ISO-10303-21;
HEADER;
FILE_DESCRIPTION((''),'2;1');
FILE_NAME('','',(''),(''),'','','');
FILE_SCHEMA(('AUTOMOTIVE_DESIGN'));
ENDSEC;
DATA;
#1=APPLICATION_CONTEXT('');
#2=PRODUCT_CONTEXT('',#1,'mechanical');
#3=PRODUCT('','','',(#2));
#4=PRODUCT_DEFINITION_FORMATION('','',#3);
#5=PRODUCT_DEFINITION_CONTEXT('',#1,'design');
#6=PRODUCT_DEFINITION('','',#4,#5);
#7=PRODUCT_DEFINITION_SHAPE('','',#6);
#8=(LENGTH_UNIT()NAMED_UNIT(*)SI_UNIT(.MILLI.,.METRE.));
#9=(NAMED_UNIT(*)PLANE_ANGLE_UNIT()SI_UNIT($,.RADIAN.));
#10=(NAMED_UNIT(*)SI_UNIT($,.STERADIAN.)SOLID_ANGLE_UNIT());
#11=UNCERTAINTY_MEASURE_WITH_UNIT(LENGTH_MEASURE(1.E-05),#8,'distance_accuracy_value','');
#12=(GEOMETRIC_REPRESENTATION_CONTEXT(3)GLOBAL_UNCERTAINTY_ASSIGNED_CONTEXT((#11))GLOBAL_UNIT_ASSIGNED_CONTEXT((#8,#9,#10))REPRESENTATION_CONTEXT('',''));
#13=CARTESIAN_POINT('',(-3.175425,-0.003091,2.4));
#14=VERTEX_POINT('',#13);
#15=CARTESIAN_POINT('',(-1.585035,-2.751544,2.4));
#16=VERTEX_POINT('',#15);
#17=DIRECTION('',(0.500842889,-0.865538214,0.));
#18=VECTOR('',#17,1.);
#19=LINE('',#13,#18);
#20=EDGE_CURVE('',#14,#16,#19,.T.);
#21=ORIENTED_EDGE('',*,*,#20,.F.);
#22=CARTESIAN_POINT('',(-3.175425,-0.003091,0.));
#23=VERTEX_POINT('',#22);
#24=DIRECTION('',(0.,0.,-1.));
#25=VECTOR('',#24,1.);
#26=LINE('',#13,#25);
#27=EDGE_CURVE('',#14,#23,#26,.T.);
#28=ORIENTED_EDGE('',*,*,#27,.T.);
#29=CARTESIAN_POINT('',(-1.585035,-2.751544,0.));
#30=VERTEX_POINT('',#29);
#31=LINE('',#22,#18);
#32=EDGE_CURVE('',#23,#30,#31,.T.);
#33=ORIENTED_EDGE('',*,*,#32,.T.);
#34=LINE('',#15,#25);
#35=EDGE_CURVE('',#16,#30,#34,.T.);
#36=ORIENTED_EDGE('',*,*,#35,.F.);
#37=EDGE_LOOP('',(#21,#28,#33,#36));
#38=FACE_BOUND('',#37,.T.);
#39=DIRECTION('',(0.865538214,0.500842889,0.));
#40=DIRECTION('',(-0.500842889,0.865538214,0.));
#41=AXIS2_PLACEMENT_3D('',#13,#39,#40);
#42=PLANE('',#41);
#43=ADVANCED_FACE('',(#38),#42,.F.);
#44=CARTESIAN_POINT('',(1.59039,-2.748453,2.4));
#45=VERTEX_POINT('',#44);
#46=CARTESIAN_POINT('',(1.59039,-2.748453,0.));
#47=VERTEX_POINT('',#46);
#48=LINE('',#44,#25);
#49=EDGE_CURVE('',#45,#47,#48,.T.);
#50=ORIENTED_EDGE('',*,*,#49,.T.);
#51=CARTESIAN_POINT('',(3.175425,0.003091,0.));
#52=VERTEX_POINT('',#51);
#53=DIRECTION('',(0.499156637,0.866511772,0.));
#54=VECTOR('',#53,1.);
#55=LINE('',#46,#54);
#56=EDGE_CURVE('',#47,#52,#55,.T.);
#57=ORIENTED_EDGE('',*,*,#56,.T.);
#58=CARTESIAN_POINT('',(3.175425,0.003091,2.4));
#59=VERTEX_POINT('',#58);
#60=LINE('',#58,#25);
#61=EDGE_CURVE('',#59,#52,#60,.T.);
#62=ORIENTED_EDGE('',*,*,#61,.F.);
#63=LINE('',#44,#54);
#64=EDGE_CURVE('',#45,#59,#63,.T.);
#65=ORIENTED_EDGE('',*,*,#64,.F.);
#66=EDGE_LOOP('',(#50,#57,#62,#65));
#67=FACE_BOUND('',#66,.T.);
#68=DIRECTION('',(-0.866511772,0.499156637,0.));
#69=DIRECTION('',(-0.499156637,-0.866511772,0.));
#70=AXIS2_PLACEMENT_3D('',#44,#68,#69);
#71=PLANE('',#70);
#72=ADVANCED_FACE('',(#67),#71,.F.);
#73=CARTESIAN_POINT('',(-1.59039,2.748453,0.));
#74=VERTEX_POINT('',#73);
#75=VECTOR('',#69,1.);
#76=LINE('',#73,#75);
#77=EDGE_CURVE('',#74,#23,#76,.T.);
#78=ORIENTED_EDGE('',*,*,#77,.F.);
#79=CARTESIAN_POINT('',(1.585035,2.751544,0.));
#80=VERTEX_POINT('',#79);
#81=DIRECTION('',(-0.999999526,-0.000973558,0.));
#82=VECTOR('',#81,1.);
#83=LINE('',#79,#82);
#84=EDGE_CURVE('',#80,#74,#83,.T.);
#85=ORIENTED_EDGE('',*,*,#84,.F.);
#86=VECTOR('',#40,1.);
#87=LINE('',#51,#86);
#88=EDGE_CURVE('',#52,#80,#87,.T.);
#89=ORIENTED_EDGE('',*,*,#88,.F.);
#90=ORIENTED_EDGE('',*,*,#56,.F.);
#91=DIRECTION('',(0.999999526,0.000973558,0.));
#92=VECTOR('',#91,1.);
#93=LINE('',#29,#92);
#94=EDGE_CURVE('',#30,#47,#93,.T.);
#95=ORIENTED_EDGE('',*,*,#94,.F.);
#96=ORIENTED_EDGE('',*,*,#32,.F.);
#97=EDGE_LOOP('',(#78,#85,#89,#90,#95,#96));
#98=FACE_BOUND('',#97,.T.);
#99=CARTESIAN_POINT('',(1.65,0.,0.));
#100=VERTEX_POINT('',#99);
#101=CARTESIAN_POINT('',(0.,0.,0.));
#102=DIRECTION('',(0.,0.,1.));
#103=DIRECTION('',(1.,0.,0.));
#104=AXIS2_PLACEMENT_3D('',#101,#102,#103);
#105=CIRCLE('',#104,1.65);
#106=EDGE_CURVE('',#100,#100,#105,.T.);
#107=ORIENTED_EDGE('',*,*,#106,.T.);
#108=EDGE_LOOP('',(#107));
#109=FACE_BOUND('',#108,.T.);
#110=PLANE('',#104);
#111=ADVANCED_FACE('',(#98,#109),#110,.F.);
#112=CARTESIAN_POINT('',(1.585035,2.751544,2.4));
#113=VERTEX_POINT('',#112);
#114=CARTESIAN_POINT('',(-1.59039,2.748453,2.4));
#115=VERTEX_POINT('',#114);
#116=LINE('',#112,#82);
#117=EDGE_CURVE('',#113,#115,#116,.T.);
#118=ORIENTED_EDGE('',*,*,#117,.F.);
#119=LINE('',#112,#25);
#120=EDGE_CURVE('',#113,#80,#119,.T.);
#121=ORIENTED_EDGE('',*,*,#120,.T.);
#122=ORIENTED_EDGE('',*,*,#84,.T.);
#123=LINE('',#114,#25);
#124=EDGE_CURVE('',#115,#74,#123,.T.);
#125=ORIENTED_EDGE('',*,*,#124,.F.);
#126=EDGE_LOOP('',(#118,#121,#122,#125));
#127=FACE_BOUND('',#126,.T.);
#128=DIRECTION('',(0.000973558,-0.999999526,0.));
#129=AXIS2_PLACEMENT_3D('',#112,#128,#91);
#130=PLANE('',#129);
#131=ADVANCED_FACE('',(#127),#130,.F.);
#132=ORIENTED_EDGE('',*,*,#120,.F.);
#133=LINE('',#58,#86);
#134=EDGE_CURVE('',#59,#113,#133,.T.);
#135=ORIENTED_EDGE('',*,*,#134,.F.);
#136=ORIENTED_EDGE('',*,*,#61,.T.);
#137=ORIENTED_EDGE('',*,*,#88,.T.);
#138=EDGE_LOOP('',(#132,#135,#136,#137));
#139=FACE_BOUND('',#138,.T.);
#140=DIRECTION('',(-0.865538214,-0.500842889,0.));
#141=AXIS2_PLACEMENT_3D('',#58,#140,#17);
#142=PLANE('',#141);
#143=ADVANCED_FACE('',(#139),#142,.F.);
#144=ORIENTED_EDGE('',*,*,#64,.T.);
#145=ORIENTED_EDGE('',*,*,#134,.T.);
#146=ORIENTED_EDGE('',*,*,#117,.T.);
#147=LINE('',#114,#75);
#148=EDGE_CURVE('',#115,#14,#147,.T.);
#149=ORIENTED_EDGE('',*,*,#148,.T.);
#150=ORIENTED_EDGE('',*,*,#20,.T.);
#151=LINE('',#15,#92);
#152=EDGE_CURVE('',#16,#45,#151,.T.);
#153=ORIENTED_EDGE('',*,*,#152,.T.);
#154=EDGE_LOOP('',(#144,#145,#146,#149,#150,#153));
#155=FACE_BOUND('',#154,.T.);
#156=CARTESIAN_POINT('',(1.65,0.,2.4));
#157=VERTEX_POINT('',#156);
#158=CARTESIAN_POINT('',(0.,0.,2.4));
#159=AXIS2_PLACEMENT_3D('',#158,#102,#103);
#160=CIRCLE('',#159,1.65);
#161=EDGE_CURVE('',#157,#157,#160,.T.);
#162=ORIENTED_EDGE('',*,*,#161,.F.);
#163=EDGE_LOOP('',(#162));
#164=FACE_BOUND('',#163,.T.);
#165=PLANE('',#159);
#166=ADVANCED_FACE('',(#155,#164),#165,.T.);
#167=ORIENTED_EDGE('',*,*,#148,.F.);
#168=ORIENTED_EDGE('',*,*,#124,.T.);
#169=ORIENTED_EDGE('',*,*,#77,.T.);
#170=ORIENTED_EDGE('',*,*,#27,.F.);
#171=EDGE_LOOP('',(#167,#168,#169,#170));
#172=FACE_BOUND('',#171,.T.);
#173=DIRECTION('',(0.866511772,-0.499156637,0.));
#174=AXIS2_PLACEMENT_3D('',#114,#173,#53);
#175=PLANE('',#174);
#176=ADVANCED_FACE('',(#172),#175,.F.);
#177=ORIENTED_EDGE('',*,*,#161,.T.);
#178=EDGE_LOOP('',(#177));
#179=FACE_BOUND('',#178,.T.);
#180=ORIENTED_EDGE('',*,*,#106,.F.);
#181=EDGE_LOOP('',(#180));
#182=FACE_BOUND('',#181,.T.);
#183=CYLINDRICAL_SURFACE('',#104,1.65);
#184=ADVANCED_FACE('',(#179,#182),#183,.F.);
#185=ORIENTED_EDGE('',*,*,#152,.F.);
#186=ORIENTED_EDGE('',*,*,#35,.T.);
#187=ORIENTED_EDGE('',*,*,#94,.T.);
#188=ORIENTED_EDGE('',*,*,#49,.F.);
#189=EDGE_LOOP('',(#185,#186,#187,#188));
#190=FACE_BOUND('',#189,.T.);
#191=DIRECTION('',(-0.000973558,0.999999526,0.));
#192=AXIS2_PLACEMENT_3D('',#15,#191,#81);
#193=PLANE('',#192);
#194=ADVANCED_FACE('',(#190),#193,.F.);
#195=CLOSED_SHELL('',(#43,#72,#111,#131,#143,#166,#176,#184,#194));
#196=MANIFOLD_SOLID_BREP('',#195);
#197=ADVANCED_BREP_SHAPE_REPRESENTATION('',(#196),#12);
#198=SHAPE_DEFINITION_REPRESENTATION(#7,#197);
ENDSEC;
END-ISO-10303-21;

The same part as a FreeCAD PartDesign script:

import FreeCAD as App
import Part
import Sketcher

V = App.Vector


def add_polygon(sketch, points):
    """Adds a closed chain of lines whose ends are joined by coincident constraints."""
    first, n = sketch.GeometryCount, len(points)
    for a, b in zip(points, points[1:] + points[:1]):
        sketch.addGeometry(Part.LineSegment(App.Vector(*a, 0), App.Vector(*b, 0)), False)
    for i in range(n):
        sketch.addConstraint(Sketcher.Constraint("Coincident", first + i, 2, first + (i + 1) % n, 1))

doc = App.newDocument("Part")
body = doc.addObject("PartDesign::Body", "Body")

# Sketch on XY plane
sketch1 = body.newObject("Sketcher::SketchObject", "Sketch")
sketch1.AttachmentSupport = (doc.getObject("XY_Plane"), [""])
sketch1.MapMode = "FlatFace"
add_polygon(sketch1, [(1.6, 2.8), (-1.6, 2.7), (-3.2, 0), (-1.6, -2.8), (1.6, -2.7), (3.2, 0)])  # lines 0-5
sketch1.addConstraint([
    Sketcher.Constraint("Symmetric", 0, 2, 3, 2, -1, 1),
    Sketcher.Constraint("Symmetric", 1, 2, 4, 2, -1, 1),
    Sketcher.Constraint("Symmetric", 2, 2, 5, 2, -1, 1),
    Sketcher.Constraint("Equal", 0, 1),
    Sketcher.Constraint("Equal", 1, 2),
    Sketcher.Constraint("DistanceX", 0, 2, -1, 1, 1.59039),
    Sketcher.Constraint("DistanceY", 1, 2, -1, 1, 0.003091),
    Sketcher.Constraint("DistanceX", 1, 2, 2, 2, 1.59039),
    Sketcher.Constraint("DistanceY", 2, 2, 3, 2, 0.003091),
])
pad1 = body.newObject("PartDesign::Pad", "Pad")
pad1.Profile = sketch1
pad1.Length = 2.4

# Sketch on XY plane
sketch2 = body.newObject("Sketcher::SketchObject", "Sketch001")
sketch2.AttachmentSupport = (doc.getObject("XY_Plane"), [""])
sketch2.MapMode = "FlatFace"
sketch2.AttachmentOffset = App.Placement(V(0, 0, 2.4), App.Rotation())
sketch2.addGeometry(Part.Circle(V(0, 0, 0), V(0, 0, 1), 1.6), False)
sketch2.addConstraint([
    Sketcher.Constraint("Coincident", 0, 3, -1, 1),
    Sketcher.Constraint("Diameter", 0, 3.3),
])
pocket1 = body.newObject("PartDesign::Pocket", "Pocket")
pocket1.Profile = sketch2
pocket1.Length = 2.4

doc.recompute()
